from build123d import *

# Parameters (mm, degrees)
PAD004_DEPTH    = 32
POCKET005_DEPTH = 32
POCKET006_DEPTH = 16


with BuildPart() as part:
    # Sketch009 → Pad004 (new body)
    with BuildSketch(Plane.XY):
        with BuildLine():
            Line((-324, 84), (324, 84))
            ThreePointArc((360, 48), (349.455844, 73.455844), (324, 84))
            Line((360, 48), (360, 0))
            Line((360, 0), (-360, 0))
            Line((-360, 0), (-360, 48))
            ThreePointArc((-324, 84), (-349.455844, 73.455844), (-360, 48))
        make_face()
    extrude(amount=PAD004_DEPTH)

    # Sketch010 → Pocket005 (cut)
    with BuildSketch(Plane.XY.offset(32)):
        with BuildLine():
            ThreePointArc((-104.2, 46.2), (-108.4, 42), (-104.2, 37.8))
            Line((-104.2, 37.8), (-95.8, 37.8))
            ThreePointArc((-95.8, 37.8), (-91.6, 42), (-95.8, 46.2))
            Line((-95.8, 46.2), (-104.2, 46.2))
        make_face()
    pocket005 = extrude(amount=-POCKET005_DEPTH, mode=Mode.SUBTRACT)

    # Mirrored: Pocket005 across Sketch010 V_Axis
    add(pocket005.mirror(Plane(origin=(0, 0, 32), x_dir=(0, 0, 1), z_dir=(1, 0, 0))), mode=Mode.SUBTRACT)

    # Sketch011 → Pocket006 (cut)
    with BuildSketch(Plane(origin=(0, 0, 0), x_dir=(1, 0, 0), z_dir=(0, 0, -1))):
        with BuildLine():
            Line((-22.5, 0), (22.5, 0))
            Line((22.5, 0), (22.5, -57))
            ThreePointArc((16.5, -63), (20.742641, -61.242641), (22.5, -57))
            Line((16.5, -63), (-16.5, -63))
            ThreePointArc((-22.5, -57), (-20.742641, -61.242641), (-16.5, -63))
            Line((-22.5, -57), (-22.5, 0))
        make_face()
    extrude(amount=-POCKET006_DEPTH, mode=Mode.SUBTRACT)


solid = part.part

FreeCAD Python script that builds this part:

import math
import FreeCAD as App
import Part
import Sketcher

V = App.Vector
Q = App.Units.Quantity

doc = App.newDocument("Part")
params = doc.addObject("Spreadsheet::Sheet", "Params")
for row, (alias, value) in enumerate([
    ("sketch1_radius", "36 mm"),
    ("sketch1_width", "648 mm"),
    ("sketch1_height", "48 mm"),
    ("pad1_length", "32 mm"),
    ("sketch2_radius", "4.2 mm"),
    ("sketch2_width", "8.4 mm"),
    ("pocket1_length", "32 mm"),
    ("sketch3_radius", "5.999999 mm"),
    ("sketch3_width", "45 mm"),
    ("sketch3_height", "57 mm"),
    ("pocket2_length", "16 mm"),
], start=1):
    params.set(f"A{row}", alias)
    params.set(f"B{row}", "=" + value)
    params.setAlias(f"B{row}", alias)

body = doc.addObject("PartDesign::Body", "Body")

# Sketch on XY plane
sketch1 = body.newObject("Sketcher::SketchObject", "Sketch")
sketch1.AttachmentSupport = (doc.getObject("XY_Plane"), [""])
sketch1.MapMode = "FlatFace"
sketch1.addGeometry([
    Part.LineSegment(V(324, 84, 0), V(-324, 84, 0)),  # 0
    Part.ArcOfCircle(Part.Circle(V(-324, 48, 0), V(0, 0, 1), 36), math.radians(90), math.radians(180)),  # 1
    Part.LineSegment(V(-360, 48, 0), V(-360, 0, 0)),  # 2
    Part.LineSegment(V(-360, 0, 0), V(360, 0, 0)),  # 3
    Part.LineSegment(V(360, 0, 0), V(360, 48, 0)),  # 4
    Part.ArcOfCircle(Part.Circle(V(324, 48, 0), V(0, 0, 1), 36), math.radians(0), math.radians(90)),  # 5
], False)
sketch1.addConstraint([
    Sketcher.Constraint("Tangent", 0, 2, 1, 1),
    Sketcher.Constraint("Tangent", 1, 2, 2, 1),
    Sketcher.Constraint("Coincident", 2, 2, 3, 1),
    Sketcher.Constraint("Coincident", 3, 2, 4, 1),
    Sketcher.Constraint("Tangent", 4, 2, 5, 1),
    Sketcher.Constraint("Tangent", 5, 2, 0, 1),
    Sketcher.Constraint("Horizontal", 0),
    Sketcher.Constraint("Vertical", 2),
    Sketcher.Constraint("Horizontal", 3),
    Sketcher.Constraint("Vertical", 4),
    Sketcher.Constraint("Equal", 1, 5),
    Sketcher.Constraint("Symmetric", 2, 2, 3, 2, -1, 1),
    Sketcher.Constraint("Radius", 1, Q("36 mm")),
    Sketcher.Constraint("DistanceX", 0, 2, 0, 1, Q("648 mm")),
    Sketcher.Constraint("DistanceY", 2, 2, 2, 1, Q("48 mm")),
])
sketch1.setExpression("Constraints[12]", "Params.sketch1_radius")
sketch1.setExpression("Constraints[13]", "Params.sketch1_width")
sketch1.setExpression("Constraints[14]", "Params.sketch1_height")
pad1 = body.newObject("PartDesign::Pad", "Pad")
pad1.Profile = sketch1
pad1.setExpression("Length", "Params.pad1_length")

# Sketch on XY plane
sketch2 = body.newObject("Sketcher::SketchObject", "Sketch001")
sketch2.AttachmentSupport = (doc.getObject("XY_Plane"), [""])
sketch2.MapMode = "FlatFace"
sketch2.AttachmentOffset = App.Placement(V(0, 0, 32), App.Rotation())
sketch2.addGeometry([
    Part.ArcOfCircle(Part.Circle(V(-104.2, 42, 0), V(0, 0, 1), 4.2), math.radians(90), math.radians(270)),
    Part.LineSegment(V(-104.2, 37.8, 0), V(-95.8, 37.8, 0)),
    Part.ArcOfCircle(Part.Circle(V(-95.8, 42, 0), V(0, 0, 1), 4.2), math.radians(-90), math.radians(90)),
    Part.LineSegment(V(-95.8, 46.2, 0), V(-104.2, 46.2, 0)),
], False)
sketch2.addConstraint([
    Sketcher.Constraint("Tangent", 0, 2, 1, 1),
    Sketcher.Constraint("Tangent", 1, 2, 2, 1),
    Sketcher.Constraint("Tangent", 2, 2, 3, 1),
    Sketcher.Constraint("Tangent", 3, 2, 0, 1),
    Sketcher.Constraint("Horizontal", 1),
    Sketcher.Constraint("Horizontal", 3),
    Sketcher.Constraint("Radius", 0, Q("4.2 mm")),
    Sketcher.Constraint("DistanceX", 1, 1, 1, 2, Q("8.4 mm")),
    Sketcher.Constraint("DistanceY", -1, 1, 0, 3, Q("42 mm")),
    Sketcher.Constraint("DistanceX", 0, 3, -1, 1, Q("104.2 mm")),
])
sketch2.setExpression("Constraints[6]", "Params.sketch2_radius")
sketch2.setExpression("Constraints[7]", "Params.sketch2_width")
pocket1 = body.newObject("PartDesign::Pocket", "Pocket")
pocket1.Profile = sketch2
pocket1.setExpression("Length", "Params.pocket1_length")
doc.recompute()

mirrored = body.newObject("PartDesign::Mirrored", "Mirrored")
mirrored.Originals = [pocket1]
mirrored.MirrorPlane = (doc.getObject("YZ_Plane"), [""])
body.Tip = mirrored

# Sketch on XY plane
sketch3 = body.newObject("Sketcher::SketchObject", "Sketch002")
sketch3.AttachmentSupport = (doc.getObject("XY_Plane"), [""])
sketch3.MapMode = "FlatFace"
sketch3.addGeometry([
    Part.LineSegment(V(22, 0, 0), V(-22, 0, 0)),  # 0
    Part.LineSegment(V(-22, 0, 0), V(-22, 57, 0)),  # 1
    Part.ArcOfCircle(Part.Circle(V(-17, 57, 0), V(0, 0, 1), 6), math.radians(90), math.radians(180)),  # 2
    Part.LineSegment(V(-16, 63, 0), V(16, 63, 0)),  # 3
    Part.ArcOfCircle(Part.Circle(V(17, 57, 0), V(0, 0, 1), 6), math.radians(0), math.radians(90)),  # 4
    Part.LineSegment(V(22, 57, 0), V(22, 0, 0)),  # 5
], False)
sketch3.addConstraint([
    Sketcher.Constraint("Coincident", 0, 2, 1, 1),
    Sketcher.Constraint("Tangent", 1, 2, 2, 2),
    Sketcher.Constraint("Tangent", 2, 1, 3, 1),
    Sketcher.Constraint("Tangent", 3, 2, 4, 2),
    Sketcher.Constraint("Tangent", 4, 1, 5, 1),
    Sketcher.Constraint("Coincident", 5, 2, 0, 1),
    Sketcher.Constraint("Horizontal", 0),
    Sketcher.Constraint("Vertical", 1),
    Sketcher.Constraint("Horizontal", 3),
    Sketcher.Constraint("Vertical", 5),
    Sketcher.Constraint("Equal", 2, 4),
    Sketcher.Constraint("Symmetric", 0, 2, 5, 2, -1, 1),
    Sketcher.Constraint("Radius", 2, Q("5.999999 mm")),
    Sketcher.Constraint("DistanceX", 0, 2, 0, 1, Q("45 mm")),
    Sketcher.Constraint("DistanceY", 1, 1, 1, 2, Q("57 mm")),
])
sketch3.setExpression("Constraints[12]", "Params.sketch3_radius")
sketch3.setExpression("Constraints[13]", "Params.sketch3_width")
sketch3.setExpression("Constraints[14]", "Params.sketch3_height")
pocket2 = body.newObject("PartDesign::Pocket", "Pocket001")
pocket2.Profile = sketch3
pocket2.setExpression("Length", "Params.pocket2_length")
pocket2.Reversed = True

doc.recompute()
